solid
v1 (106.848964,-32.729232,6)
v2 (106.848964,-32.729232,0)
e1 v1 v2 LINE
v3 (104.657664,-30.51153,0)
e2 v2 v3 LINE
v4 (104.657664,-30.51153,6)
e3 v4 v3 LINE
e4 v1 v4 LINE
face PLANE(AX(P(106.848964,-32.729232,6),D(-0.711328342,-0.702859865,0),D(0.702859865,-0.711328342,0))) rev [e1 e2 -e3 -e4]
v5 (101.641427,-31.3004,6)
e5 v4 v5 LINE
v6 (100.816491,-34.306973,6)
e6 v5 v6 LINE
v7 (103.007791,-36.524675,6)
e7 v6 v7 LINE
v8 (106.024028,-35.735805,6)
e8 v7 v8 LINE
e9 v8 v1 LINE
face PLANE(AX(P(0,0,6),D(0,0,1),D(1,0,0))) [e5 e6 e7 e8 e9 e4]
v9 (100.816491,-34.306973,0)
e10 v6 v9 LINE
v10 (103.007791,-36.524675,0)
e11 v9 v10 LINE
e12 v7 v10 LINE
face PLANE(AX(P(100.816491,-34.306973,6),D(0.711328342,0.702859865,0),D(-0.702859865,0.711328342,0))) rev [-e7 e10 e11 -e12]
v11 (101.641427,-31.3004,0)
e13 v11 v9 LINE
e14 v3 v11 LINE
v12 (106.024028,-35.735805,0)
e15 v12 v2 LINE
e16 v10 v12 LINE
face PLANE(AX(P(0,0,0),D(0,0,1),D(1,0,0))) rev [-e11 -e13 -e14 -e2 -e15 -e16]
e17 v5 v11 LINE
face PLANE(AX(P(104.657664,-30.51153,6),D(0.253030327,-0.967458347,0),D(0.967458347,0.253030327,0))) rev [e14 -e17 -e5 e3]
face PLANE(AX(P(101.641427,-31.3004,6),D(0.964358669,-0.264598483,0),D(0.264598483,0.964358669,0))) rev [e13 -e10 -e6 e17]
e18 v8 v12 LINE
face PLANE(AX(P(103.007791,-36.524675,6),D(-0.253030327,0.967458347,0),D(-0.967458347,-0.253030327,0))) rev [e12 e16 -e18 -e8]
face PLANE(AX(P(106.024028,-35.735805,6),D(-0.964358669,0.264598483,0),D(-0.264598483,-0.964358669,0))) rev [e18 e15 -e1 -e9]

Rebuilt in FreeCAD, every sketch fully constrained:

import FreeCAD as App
import Part
import Sketcher

V = App.Vector

doc = App.newDocument("Part")
body = doc.addObject("PartDesign::Body", "Body")

# Sketch on XY plane
sketch1 = body.newObject("Sketcher::SketchObject", "Sketch")
sketch1.AttachmentSupport = (doc.getObject("XY_Plane"), [""])
sketch1.MapMode = "FlatFace"
sketch1.addGeometry([
    Part.LineSegment(V(104.7, -30.5, 0), V(101.6, -31.3, 0)),  # 0
    Part.LineSegment(V(101.6, -31.3, 0), V(100.8, -34.3, 0)),  # 1
    Part.LineSegment(V(100.8, -34.3, 0), V(103, -36.5, 0)),  # 2
    Part.LineSegment(V(103, -36.5, 0), V(106, -35.7, 0)),  # 3
    Part.LineSegment(V(106, -35.7, 0), V(106.8, -32.7, 0)),  # 4
    Part.LineSegment(V(106.8, -32.7, 0), V(104.7, -30.5, 0)),  # 5
], False)
sketch1.addConstraint([
    Sketcher.Constraint("Coincident", 0, 2, 1, 1),
    Sketcher.Constraint("Coincident", 1, 2, 2, 1),
    Sketcher.Constraint("Coincident", 2, 2, 3, 1),
    Sketcher.Constraint("Coincident", 3, 2, 4, 1),
    Sketcher.Constraint("Coincident", 4, 2, 5, 1),
    Sketcher.Constraint("Coincident", 5, 2, 0, 1),
    Sketcher.Constraint("Parallel", 0, 3),
    Sketcher.Constraint("Parallel", 1, 4),
    Sketcher.Constraint("Parallel", 2, 5),
    Sketcher.Constraint("Equal", 0, 1),
    Sketcher.Constraint("Equal", 1, 2),
    Sketcher.Constraint("Equal", 2, 3),
    Sketcher.Constraint("DistanceY", 0, 2, -1, 1, 31.3004),
    Sketcher.Constraint("DistanceX", 1, 2, 2, 2, 2.1913),
    Sketcher.Constraint("DistanceX", 0, 2, 3, 2, 4.3826),
    Sketcher.Constraint("Distance", 0, 3.117691),
    Sketcher.Constraint("DistanceX", -1, 1, 1, 2, 100.816491),
    Sketcher.Constraint("DistanceY", 4, 2, -1, 1, 32.729232),
])
pad1 = body.newObject("PartDesign::Pad", "Pad")
pad1.Profile = sketch1
pad1.Length = 6

doc.recompute()
